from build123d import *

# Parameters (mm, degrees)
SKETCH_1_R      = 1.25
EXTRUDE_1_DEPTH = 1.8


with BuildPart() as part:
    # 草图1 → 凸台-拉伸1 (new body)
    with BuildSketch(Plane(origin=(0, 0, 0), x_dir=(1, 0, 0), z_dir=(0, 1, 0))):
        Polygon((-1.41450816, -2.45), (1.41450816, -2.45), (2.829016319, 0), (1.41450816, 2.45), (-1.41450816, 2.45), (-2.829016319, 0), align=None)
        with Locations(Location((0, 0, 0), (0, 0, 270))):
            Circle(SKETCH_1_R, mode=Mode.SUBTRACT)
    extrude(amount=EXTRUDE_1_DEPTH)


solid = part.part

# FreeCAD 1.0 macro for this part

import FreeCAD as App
import Part
import Sketcher
Q = App.Units.Quantity


def add_polygon(sketch, points):
    """Adds a closed chain of lines whose ends are joined by coincident constraints."""
    first, n = sketch.GeometryCount, len(points)
    for a, b in zip(points, points[1:] + points[:1]):
        sketch.addGeometry(Part.LineSegment(App.Vector(*a, 0), App.Vector(*b, 0)), False)
    for i in range(n):
        sketch.addConstraint(Sketcher.Constraint("Coincident", first + i, 2, first + (i + 1) % n, 1))

doc = App.newDocument("Part")
body = doc.addObject("PartDesign::Body", "Body")

sketch1 = body.newObject("Sketcher::SketchObject", "Sketch")
sketch1.AttachmentSupport = (doc.getObject("XZ_Plane"), [""])
sketch1.MapMode = "FlatFace"
add_polygon(sketch1, [(-1.4, 2.5), (1.4, 2.5), (2.8, 0), (1.4, -2.5), (-1.4, -2.5), (-2.8, 0)])
sketch1.addGeometry(Part.Circle(App.Vector(0, 0, 0), App.Vector(0, 0, 1), 1.2), False)
sketch1.addConstraint([
    Sketcher.Constraint("Horizontal", 0),
    Sketcher.Constraint("Horizontal", 3),
    Sketcher.Constraint("Coincident", 6, 3, -1, 1),
    Sketcher.Constraint("Symmetric", 0, 2, 3, 2, -1, 1),
    Sketcher.Constraint("Symmetric", 1, 2, 4, 2, -1, 1),
    Sketcher.Constraint("PointOnObject", 1, 2, -1),
    Sketcher.Constraint("Parallel", 2, 5),
    Sketcher.Constraint("Vertical", 0, 2, 2, 2),
    Sketcher.Constraint("Diameter", 6, 2.5),
    Sketcher.Constraint("Angle", 1, Q("-60 deg")),
    Sketcher.Constraint("DistanceY", 2, 2, 0, 2, 4.9),
    Sketcher.Constraint("DistanceX", 0, 1, 0, 2, 2.829016),
])
pad1 = body.newObject("PartDesign::Pad", "Pad")
pad1.Profile = sketch1
pad1.Length = 1.8
pad1.Reversed = True

doc.recompute()
